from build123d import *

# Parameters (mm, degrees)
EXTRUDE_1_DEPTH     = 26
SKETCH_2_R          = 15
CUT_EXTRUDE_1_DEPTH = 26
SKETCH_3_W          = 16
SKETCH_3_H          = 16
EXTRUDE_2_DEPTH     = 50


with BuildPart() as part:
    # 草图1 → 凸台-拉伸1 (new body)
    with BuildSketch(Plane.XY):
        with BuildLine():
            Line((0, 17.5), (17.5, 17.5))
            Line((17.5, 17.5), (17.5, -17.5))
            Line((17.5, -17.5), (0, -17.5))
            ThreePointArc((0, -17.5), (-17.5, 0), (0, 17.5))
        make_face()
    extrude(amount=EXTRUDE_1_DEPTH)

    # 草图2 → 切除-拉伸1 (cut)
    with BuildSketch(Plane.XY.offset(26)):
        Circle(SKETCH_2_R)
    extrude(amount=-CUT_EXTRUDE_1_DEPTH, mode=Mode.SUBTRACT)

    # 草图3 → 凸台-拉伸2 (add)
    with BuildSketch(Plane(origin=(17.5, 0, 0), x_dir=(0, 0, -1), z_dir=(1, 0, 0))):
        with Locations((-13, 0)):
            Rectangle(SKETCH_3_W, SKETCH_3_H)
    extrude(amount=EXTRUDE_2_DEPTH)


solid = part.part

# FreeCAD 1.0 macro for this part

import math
import FreeCAD as App
import Part
import Sketcher
from FreeCAD import Vector
Q = App.Units.Quantity

doc = App.newDocument("Part")
body = doc.addObject("PartDesign::Body", "Body")

# Sketch on XY plane
sketch1 = body.newObject("Sketcher::SketchObject", "Sketch")
sketch1.AttachmentSupport = (doc.getObject("XY_Plane"), [""])
sketch1.MapMode = "FlatFace"
sketch1.addGeometry(Part.LineSegment(Vector(18, 18, 0), Vector(0, 18, 0)), False)
sketch1.addGeometry(Part.ArcOfCircle(Part.Circle(Vector(0, 0, 0), Vector(0, 0, 1), 18), math.radians(90), math.radians(270)), False)
sketch1.addGeometry(Part.LineSegment(Vector(0, -18, 0), Vector(18, -18, 0)), False)
sketch1.addGeometry(Part.LineSegment(Vector(18, -18, 0), Vector(18, 18, 0)), False)
sketch1.addConstraint(Sketcher.Constraint("Tangent", 0, 2, 1, 1))
sketch1.addConstraint(Sketcher.Constraint("Tangent", 1, 2, 2, 1))
sketch1.addConstraint(Sketcher.Constraint("Coincident", 2, 2, 3, 1))
sketch1.addConstraint(Sketcher.Constraint("Coincident", 3, 2, 0, 1))
sketch1.addConstraint(Sketcher.Constraint("Horizontal", 0))
sketch1.addConstraint(Sketcher.Constraint("Horizontal", 2))
sketch1.addConstraint(Sketcher.Constraint("Vertical", 3))
sketch1.addConstraint(Sketcher.Constraint("Coincident", 1, 3, -1, 1))
sketch1.addConstraint(Sketcher.Constraint("Radius", 1, Q("17.5 mm")))
sketch1.addConstraint(Sketcher.Constraint("DistanceX", 0, 2, 0, 1, Q("17.5 mm")))
pad1 = body.newObject("PartDesign::Pad", "Pad")
pad1.Profile = sketch1
pad1.Length = 26

# Sketch on XY plane
sketch2 = body.newObject("Sketcher::SketchObject", "Sketch001")
sketch2.AttachmentSupport = (doc.getObject("XY_Plane"), [""])
sketch2.MapMode = "FlatFace"
sketch2.AttachmentOffset = App.Placement(Vector(0, 0, 26), App.Rotation())
sketch2.addGeometry(Part.Circle(Vector(0, 0, 0), Vector(0, 0, 1), 15), False)
sketch2.addConstraint(Sketcher.Constraint("Coincident", 0, 3, -1, 1))
sketch2.addConstraint(Sketcher.Constraint("Diameter", 0, Q("30 mm")))
pocket1 = body.newObject("PartDesign::Pocket", "Pocket")
pocket1.Profile = sketch2
pocket1.Length = 26

# Sketch on YZ plane
sketch3 = body.newObject("Sketcher::SketchObject", "Sketch002")
sketch3.AttachmentSupport = (doc.getObject("YZ_Plane"), [""])
sketch3.MapMode = "FlatFace"
sketch3.AttachmentOffset = App.Placement(Vector(0, 0, 17.5), App.Rotation())
sketch3.addGeometry(Part.LineSegment(Vector(8, 21, 0), Vector(-8, 21, 0)), False)
sketch3.addGeometry(Part.LineSegment(Vector(-8, 21, 0), Vector(-8, 5, 0)), False)
sketch3.addGeometry(Part.LineSegment(Vector(-8, 5, 0), Vector(8, 5, 0)), False)
sketch3.addGeometry(Part.LineSegment(Vector(8, 5, 0), Vector(8, 21, 0)), False)
sketch3.addConstraint(Sketcher.Constraint("Coincident", 0, 2, 1, 1))
sketch3.addConstraint(Sketcher.Constraint("Coincident", 1, 2, 2, 1))
sketch3.addConstraint(Sketcher.Constraint("Coincident", 2, 2, 3, 1))
sketch3.addConstraint(Sketcher.Constraint("Coincident", 3, 2, 0, 1))
sketch3.addConstraint(Sketcher.Constraint("Horizontal", 0))
sketch3.addConstraint(Sketcher.Constraint("Vertical", 1))
sketch3.addConstraint(Sketcher.Constraint("Horizontal", 2))
sketch3.addConstraint(Sketcher.Constraint("Vertical", 3))
sketch3.addConstraint(Sketcher.Constraint("Equal", 2, 1))
sketch3.addConstraint(Sketcher.Constraint("DistanceX", 0, 2, 0, 1, Q("16 mm")))
sketch3.addConstraint(Sketcher.Constraint("DistanceX", 0, 2, -1, 1, Q("8 mm")))
sketch3.addConstraint(Sketcher.Constraint("DistanceY", -1, 1, 0, 2, Q("21 mm")))
pad2 = body.newObject("PartDesign::Pad", "Pad001")
pad2.Profile = sketch3
pad2.Length = 50

doc.recompute()
